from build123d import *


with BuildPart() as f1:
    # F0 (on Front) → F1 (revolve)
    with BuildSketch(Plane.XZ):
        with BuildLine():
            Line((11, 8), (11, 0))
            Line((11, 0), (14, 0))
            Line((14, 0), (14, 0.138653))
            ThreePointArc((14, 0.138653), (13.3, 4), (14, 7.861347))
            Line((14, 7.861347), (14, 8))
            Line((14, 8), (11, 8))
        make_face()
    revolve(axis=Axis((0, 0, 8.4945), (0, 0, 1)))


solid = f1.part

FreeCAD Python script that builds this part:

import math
import FreeCAD as App
import Part
import Sketcher

V = App.Vector
Q = App.Units.Quantity

doc = App.newDocument("Part")
body = doc.addObject("PartDesign::Body", "Body")

# Sketch on XZ plane
sketch1 = body.newObject("Sketcher::SketchObject", "Sketch")
sketch1.AttachmentSupport = (doc.getObject("XZ_Plane"), [""])
sketch1.MapMode = "FlatFace"
sketch1.addGeometry([
    Part.LineSegment(V(11, 8, 0), V(11, 0, 0)),  # 0
    Part.LineSegment(V(11, 0, 0), V(14, 0, 0)),  # 1
    Part.LineSegment(V(14, 0, 0), V(14, 0.138653, 0)),  # 2
    Part.ArcOfCircle(Part.Circle(V(24.3, 4, 0), V(0, 0, 1), 11), math.radians(159.449579), math.radians(200.550421)),  # 3
    Part.LineSegment(V(14, 7.861347, 0), V(14, 8, 0)),  # 4
    Part.LineSegment(V(14, 8, 0), V(11, 8, 0)),  # 5
], False)
sketch1.addConstraint([
    Sketcher.Constraint("Coincident", 0, 2, 1, 1),
    Sketcher.Constraint("Coincident", 1, 2, 2, 1),
    Sketcher.Constraint("Coincident", 2, 2, 3, 2),
    Sketcher.Constraint("Coincident", 3, 1, 4, 1),
    Sketcher.Constraint("Coincident", 4, 2, 5, 1),
    Sketcher.Constraint("Coincident", 5, 2, 0, 1),
    Sketcher.Constraint("Vertical", 0),
    Sketcher.Constraint("Horizontal", 1),
    Sketcher.Constraint("Vertical", 2),
    Sketcher.Constraint("Vertical", 4),
    Sketcher.Constraint("Horizontal", 5),
    Sketcher.Constraint("PointOnObject", 0, 2, -1),
    Sketcher.Constraint("Vertical", 2, 2, 3, 1),
    Sketcher.Constraint("Equal", 2, 4),
    Sketcher.Constraint("Radius", 3, Q("11 mm")),
    Sketcher.Constraint("DistanceX", 1, 1, 1, 2, Q("3 mm")),
    Sketcher.Constraint("DistanceY", 0, 2, 0, 1, Q("8 mm")),
    Sketcher.Constraint("DistanceX", -1, 1, 0, 2, Q("11 mm")),
    Sketcher.Constraint("DistanceX", -1, 1, 3, 3, Q("24.3 mm")),
])
revolution = body.newObject("PartDesign::Revolution", "Revolution")
revolution.Profile = sketch1
revolution.ReferenceAxis = (sketch1, ["V_Axis"])
revolution.Angle = 360

doc.recompute()
